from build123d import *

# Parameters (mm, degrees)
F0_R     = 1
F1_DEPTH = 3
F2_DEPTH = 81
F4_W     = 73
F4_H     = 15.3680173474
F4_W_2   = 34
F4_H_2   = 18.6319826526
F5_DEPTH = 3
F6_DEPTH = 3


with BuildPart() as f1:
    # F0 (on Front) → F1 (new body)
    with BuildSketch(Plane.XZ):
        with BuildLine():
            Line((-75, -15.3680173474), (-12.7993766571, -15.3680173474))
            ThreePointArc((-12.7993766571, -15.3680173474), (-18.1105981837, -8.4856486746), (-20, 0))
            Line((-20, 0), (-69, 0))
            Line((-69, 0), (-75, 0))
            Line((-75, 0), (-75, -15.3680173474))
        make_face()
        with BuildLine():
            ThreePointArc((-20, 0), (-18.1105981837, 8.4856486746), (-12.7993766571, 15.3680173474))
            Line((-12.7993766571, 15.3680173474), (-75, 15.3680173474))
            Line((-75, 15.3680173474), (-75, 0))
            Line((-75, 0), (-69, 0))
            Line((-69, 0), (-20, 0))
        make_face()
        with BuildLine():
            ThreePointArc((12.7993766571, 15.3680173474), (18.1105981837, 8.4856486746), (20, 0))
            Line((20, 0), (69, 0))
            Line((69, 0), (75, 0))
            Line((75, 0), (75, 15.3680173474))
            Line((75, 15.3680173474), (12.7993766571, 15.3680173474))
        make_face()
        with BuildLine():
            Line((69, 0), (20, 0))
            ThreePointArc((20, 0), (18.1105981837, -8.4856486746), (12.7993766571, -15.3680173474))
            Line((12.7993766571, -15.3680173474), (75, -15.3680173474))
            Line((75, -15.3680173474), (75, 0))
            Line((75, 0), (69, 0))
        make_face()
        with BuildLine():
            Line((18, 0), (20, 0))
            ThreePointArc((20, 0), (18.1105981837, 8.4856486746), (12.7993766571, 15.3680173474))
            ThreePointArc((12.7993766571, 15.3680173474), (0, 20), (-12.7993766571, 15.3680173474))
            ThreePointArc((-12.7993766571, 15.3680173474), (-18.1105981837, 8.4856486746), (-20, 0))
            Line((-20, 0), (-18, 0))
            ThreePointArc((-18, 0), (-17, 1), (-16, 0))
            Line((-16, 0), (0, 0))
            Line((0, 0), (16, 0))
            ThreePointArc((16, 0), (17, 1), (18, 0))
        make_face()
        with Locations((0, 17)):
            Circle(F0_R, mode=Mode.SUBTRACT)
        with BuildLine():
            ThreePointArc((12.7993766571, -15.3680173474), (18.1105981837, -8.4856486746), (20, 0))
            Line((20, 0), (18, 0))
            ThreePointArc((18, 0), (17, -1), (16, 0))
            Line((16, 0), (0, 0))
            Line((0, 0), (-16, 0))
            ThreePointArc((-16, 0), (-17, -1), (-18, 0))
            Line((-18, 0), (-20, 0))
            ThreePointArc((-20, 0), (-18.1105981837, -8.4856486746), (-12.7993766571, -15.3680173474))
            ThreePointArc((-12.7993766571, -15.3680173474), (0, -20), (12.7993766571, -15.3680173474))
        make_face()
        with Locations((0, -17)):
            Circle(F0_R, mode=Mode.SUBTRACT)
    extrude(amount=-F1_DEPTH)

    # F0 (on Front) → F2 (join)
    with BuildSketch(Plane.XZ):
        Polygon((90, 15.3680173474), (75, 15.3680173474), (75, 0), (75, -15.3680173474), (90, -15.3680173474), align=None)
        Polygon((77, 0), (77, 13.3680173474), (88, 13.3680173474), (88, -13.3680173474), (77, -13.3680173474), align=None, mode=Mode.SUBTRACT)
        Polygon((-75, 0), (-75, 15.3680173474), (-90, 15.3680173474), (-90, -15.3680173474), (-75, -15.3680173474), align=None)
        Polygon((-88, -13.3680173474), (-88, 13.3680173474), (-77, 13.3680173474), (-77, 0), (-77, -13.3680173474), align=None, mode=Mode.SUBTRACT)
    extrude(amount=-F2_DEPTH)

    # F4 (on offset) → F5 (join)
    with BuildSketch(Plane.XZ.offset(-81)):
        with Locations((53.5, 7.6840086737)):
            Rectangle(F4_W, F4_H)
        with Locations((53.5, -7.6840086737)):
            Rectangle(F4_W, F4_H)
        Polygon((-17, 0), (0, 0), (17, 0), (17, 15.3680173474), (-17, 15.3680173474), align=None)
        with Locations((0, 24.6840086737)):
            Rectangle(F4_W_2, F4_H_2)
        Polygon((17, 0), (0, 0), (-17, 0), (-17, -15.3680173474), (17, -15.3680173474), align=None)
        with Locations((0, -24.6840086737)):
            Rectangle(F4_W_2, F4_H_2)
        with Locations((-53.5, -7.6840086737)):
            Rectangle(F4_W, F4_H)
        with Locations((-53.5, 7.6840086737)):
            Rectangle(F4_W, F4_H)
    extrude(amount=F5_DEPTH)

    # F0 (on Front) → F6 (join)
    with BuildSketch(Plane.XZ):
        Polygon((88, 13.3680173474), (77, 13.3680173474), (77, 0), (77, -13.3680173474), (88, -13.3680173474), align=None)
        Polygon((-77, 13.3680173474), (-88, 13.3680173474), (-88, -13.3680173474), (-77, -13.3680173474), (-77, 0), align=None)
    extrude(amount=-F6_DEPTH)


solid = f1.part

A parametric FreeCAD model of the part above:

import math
import FreeCAD as App
import Part
import Sketcher

V = App.Vector
Q = App.Units.Quantity

doc = App.newDocument("Part")
params = doc.addObject("Spreadsheet::Sheet", "Params")
for row, (alias, value) in enumerate([
    ("sketch1_diameter", "2 mm"),
    ("sketch1_radius", "20 mm"),
    ("pad1_length", "3 mm"),
    ("sketch2_width", "15 mm"),
    ("sketch2_width2", "11 mm"),
    ("pad2_length", "81 mm"),
    ("sketch3_width", "73 mm"),
    ("sketch3_width2", "34 mm"),
    ("pad3_length", "3 mm"),
    ("sketch4_width", "11 mm"),
    ("pad4_length", "3 mm"),
], start=1):
    params.set(f"A{row}", alias)
    params.set(f"B{row}", "=" + value)
    params.setAlias(f"B{row}", alias)

body = doc.addObject("PartDesign::Body", "Body")

sketch1 = doc.addObject("Sketcher::SketchObject", "Sketch")
body.addObject(sketch1)
sketch1.AttachmentSupport = (doc.XZ_Plane, [""])
sketch1.MapMode = "FlatFace"
sketch1.addGeometry([
    Part.LineSegment(V(-75, -15.4, 0), V(-12.8, -15.4, 0)),
    Part.ArcOfCircle(Part.Circle(V(0, 0, 0), V(0, 0, 1), 20), math.radians(-130), math.radians(-50)),
    Part.LineSegment(V(12.8, -15.4, 0), V(75, -15.4, 0)),
    Part.LineSegment(V(75, -15.4, 0), V(75, 15.4, 0)),
    Part.LineSegment(V(75, 15.4, 0), V(12.8, 15.4, 0)),
    Part.ArcOfCircle(Part.Circle(V(0, 0, 0), V(0, 0, 1), 20), math.radians(50), math.radians(130)),
    Part.LineSegment(V(-12.8, 15.4, 0), V(-75, 15.4, 0)),
    Part.LineSegment(V(-75, 15.4, 0), V(-75, -15.4, 0)),
    Part.Circle(V(0, -17, 0), V(0, 0, 1), 1),
    Part.Circle(V(-17, 0, 0), V(0, 0, 1), 1),
    Part.Circle(V(17, 0, 0), V(0, 0, 1), 1),
    Part.Circle(V(0, 17, 0), V(0, 0, 1), 1),
], False)
sketch1.addConstraint([
    Sketcher.Constraint("Coincident", 0, 2, 1, 1),
    Sketcher.Constraint("Coincident", 1, 2, 2, 1),
    Sketcher.Constraint("Coincident", 2, 2, 3, 1),
    Sketcher.Constraint("Coincident", 3, 2, 4, 1),
    Sketcher.Constraint("Coincident", 4, 2, 5, 1),
    Sketcher.Constraint("Coincident", 5, 2, 6, 1),
    Sketcher.Constraint("Coincident", 6, 2, 7, 1),
    Sketcher.Constraint("Coincident", 7, 2, 0, 1),
    Sketcher.Constraint("Horizontal", 0),
    Sketcher.Constraint("Horizontal", 2),
    Sketcher.Constraint("Vertical", 3),
    Sketcher.Constraint("Horizontal", 4),
    Sketcher.Constraint("Horizontal", 6),
    Sketcher.Constraint("Vertical", 7),
    Sketcher.Constraint("Coincident", 1, 3, -1, 1),
    Sketcher.Constraint("Coincident", 5, 3, -1, 1),
    Sketcher.Constraint("Equal", 1, 5),
    Sketcher.Constraint("Equal", 8, 9),
    Sketcher.Constraint("Equal", 9, 10),
    Sketcher.Constraint("Equal", 10, 11),
    Sketcher.Constraint("Symmetric", 9, 3, 10, 3, -1, 1),
    Sketcher.Constraint("Symmetric", 8, 3, 11, 3, -1, 1),
    Sketcher.Constraint("Symmetric", 2, 2, 6, 2, -1, 1),
    Sketcher.Constraint("PointOnObject", 8, 3, -2),
    Sketcher.Constraint("PointOnObject", 9, 3, -1),
    Sketcher.Constraint("Horizontal", 0, 2, 1, 2),
    Sketcher.Constraint("Horizontal", 4, 2, 5, 2),
    Sketcher.Constraint("Diameter", 8, Q("2 mm")),
    Sketcher.Constraint("Radius", 1, Q("20 mm")),
    Sketcher.Constraint("DistanceY", 8, 3, -1, 1, Q("17 mm")),
    Sketcher.Constraint("DistanceX", 9, 3, -1, 1, Q("17 mm")),
    Sketcher.Constraint("DistanceX", -1, 1, 2, 2, Q("75 mm")),
    Sketcher.Constraint("DistanceX", 0, 1, 0, 2, Q("62.200623 mm")),
])
sketch1.setExpression("Constraints[27]", "Params.sketch1_diameter")
sketch1.setExpression("Constraints[28]", "Params.sketch1_radius")
pad1 = doc.addObject("PartDesign::Pad", "Pad")
body.addObject(pad1)
pad1.Profile = sketch1
pad1.setExpression("Length", "Params.pad1_length")
pad1.Reversed = True

sketch2 = doc.addObject("Sketcher::SketchObject", "Sketch001")
body.addObject(sketch2)
sketch2.AttachmentSupport = (doc.XZ_Plane, [""])
sketch2.MapMode = "FlatFace"
sketch2.addGeometry([
    Part.LineSegment(V(90, 15, 0), V(75, 15, 0)),
    Part.LineSegment(V(75, 15, 0), V(75, -15, 0)),
    Part.LineSegment(V(75, -15, 0), V(90, -15, 0)),
    Part.LineSegment(V(90, -15, 0), V(90, 15, 0)),
    Part.LineSegment(V(77, -13, 0), V(77, 13, 0)),
    Part.LineSegment(V(77, 13, 0), V(88, 13, 0)),
    Part.LineSegment(V(88, 13, 0), V(88, -13, 0)),
    Part.LineSegment(V(88, -13, 0), V(77, -13, 0)),
    Part.LineSegment(V(-75, 15, 0), V(-90, 15, 0)),
    Part.LineSegment(V(-90, 15, 0), V(-90, -15, 0)),
    Part.LineSegment(V(-90, -15, 0), V(-75, -15, 0)),
    Part.LineSegment(V(-75, -15, 0), V(-75, 15, 0)),
    Part.LineSegment(V(-77, -13, 0), V(-88, -13, 0)),
    Part.LineSegment(V(-88, -13, 0), V(-88, 13, 0)),
    Part.LineSegment(V(-88, 13, 0), V(-77, 13, 0)),
    Part.LineSegment(V(-77, 13, 0), V(-77, -13, 0)),
], False)
sketch2.addConstraint([
    Sketcher.Constraint("Coincident", 0, 2, 1, 1),
    Sketcher.Constraint("Coincident", 1, 2, 2, 1),
    Sketcher.Constraint("Coincident", 2, 2, 3, 1),
    Sketcher.Constraint("Coincident", 3, 2, 0, 1),
    Sketcher.Constraint("Coincident", 4, 2, 5, 1),
    Sketcher.Constraint("Coincident", 5, 2, 6, 1),
    Sketcher.Constraint("Coincident", 6, 2, 7, 1),
    Sketcher.Constraint("Coincident", 7, 2, 4, 1),
    Sketcher.Constraint("Coincident", 8, 2, 9, 1),
    Sketcher.Constraint("Coincident", 9, 2, 10, 1),
    Sketcher.Constraint("Coincident", 10, 2, 11, 1),
    Sketcher.Constraint("Coincident", 11, 2, 8, 1),
    Sketcher.Constraint("Coincident", 12, 2, 13, 1),
    Sketcher.Constraint("Coincident", 13, 2, 14, 1),
    Sketcher.Constraint("Coincident", 14, 2, 15, 1),
    Sketcher.Constraint("Coincident", 15, 2, 12, 1),
    Sketcher.Constraint("Horizontal", 0),
    Sketcher.Constraint("Vertical", 1),
    Sketcher.Constraint("Horizontal", 2),
    Sketcher.Constraint("Vertical", 3),
    Sketcher.Constraint("Vertical", 4),
    Sketcher.Constraint("Horizontal", 5),
    Sketcher.Constraint("Vertical", 6),
    Sketcher.Constraint("Horizontal", 7),
    Sketcher.Constraint("Horizontal", 8),
    Sketcher.Constraint("Vertical", 9),
    Sketcher.Constraint("Horizontal", 10),
    Sketcher.Constraint("Vertical", 11),
    Sketcher.Constraint("Horizontal", 12),
    Sketcher.Constraint("Vertical", 13),
    Sketcher.Constraint("Horizontal", 14),
    Sketcher.Constraint("Vertical", 15),
    Sketcher.Constraint("Symmetric", 2, 2, 8, 2, -1, 1),
    Sketcher.Constraint("Symmetric", 0, 2, 10, 2, -1, 1),
    Sketcher.Constraint("Symmetric", 5, 2, 12, 2, -1, 1),
    Sketcher.Constraint("Symmetric", 7, 2, 14, 2, -1, 1),
    Sketcher.Constraint("Horizontal", 3, 2, 8, 2),
    Sketcher.Constraint("Horizontal", 7, 2, 12, 2),
    Sketcher.Constraint("DistanceX", 0, 2, 0, 1, Q("15 mm")),
    Sketcher.Constraint("DistanceX", 5, 1, 5, 2, Q("11 mm")),
    Sketcher.Constraint("DistanceX", -1, 1, 0, 2, Q("75 mm")),
    Sketcher.Constraint("DistanceX", -1, 1, 4, 2, Q("77 mm")),
    Sketcher.Constraint("DistanceY", 4, 2, 0, 2, Q("2 mm")),
    Sketcher.Constraint("DistanceY", 1, 2, 1, 1, Q("30.736035 mm")),
])
sketch2.setExpression("Constraints[38]", "Params.sketch2_width")
sketch2.setExpression("Constraints[39]", "Params.sketch2_width2")
pad2 = doc.addObject("PartDesign::Pad", "Pad001")
body.addObject(pad2)
pad2.Profile = sketch2
pad2.setExpression("Length", "Params.pad2_length")
pad2.Reversed = True

sketch3 = doc.addObject("Sketcher::SketchObject", "Sketch002")
body.addObject(sketch3)
sketch3.AttachmentSupport = (doc.XZ_Plane, [""])
sketch3.MapMode = "FlatFace"
sketch3.AttachmentOffset = App.Placement(V(0, 0, -81), App.Rotation())
sketch3.addGeometry([
    Part.LineSegment(V(90, -15, 0), V(90, 15, 0)),
    Part.LineSegment(V(90, 15, 0), V(17, 15, 0)),
    Part.LineSegment(V(17, 15, 0), V(17, 34, 0)),
    Part.LineSegment(V(17, 34, 0), V(-17, 34, 0)),
    Part.LineSegment(V(-17, 34, 0), V(-17, 15, 0)),
    Part.LineSegment(V(-17, 15, 0), V(-90, 15, 0)),
    Part.LineSegment(V(-90, 15, 0), V(-90, -15, 0)),
    Part.LineSegment(V(-90, -15, 0), V(-17, -15, 0)),
    Part.LineSegment(V(-17, -15, 0), V(-17, -34, 0)),
    Part.LineSegment(V(-17, -34, 0), V(17, -34, 0)),
    Part.LineSegment(V(17, -34, 0), V(17, -15, 0)),
    Part.LineSegment(V(17, -15, 0), V(90, -15, 0)),
], False)
sketch3.addConstraint([
    Sketcher.Constraint("Coincident", 0, 2, 1, 1),
    Sketcher.Constraint("Coincident", 1, 2, 2, 1),
    Sketcher.Constraint("Coincident", 2, 2, 3, 1),
    Sketcher.Constraint("Coincident", 3, 2, 4, 1),
    Sketcher.Constraint("Coincident", 4, 2, 5, 1),
    Sketcher.Constraint("Coincident", 5, 2, 6, 1),
    Sketcher.Constraint("Coincident", 6, 2, 7, 1),
    Sketcher.Constraint("Coincident", 7, 2, 8, 1),
    Sketcher.Constraint("Coincident", 8, 2, 9, 1),
    Sketcher.Constraint("Coincident", 9, 2, 10, 1),
    Sketcher.Constraint("Coincident", 10, 2, 11, 1),
    Sketcher.Constraint("Coincident", 11, 2, 0, 1),
    Sketcher.Constraint("Vertical", 0),
    Sketcher.Constraint("Horizontal", 1),
    Sketcher.Constraint("Vertical", 2),
    Sketcher.Constraint("Horizontal", 3),
    Sketcher.Constraint("Vertical", 4),
    Sketcher.Constraint("Horizontal", 5),
    Sketcher.Constraint("Vertical", 6),
    Sketcher.Constraint("Horizontal", 7),
    Sketcher.Constraint("Vertical", 8),
    Sketcher.Constraint("Horizontal", 9),
    Sketcher.Constraint("Vertical", 10),
    Sketcher.Constraint("Horizontal", 11),
    Sketcher.Constraint("Symmetric", 0, 2, 6, 2, -1, 1),
    Sketcher.Constraint("Symmetric", 2, 2, 8, 2, -1, 1),
    Sketcher.Constraint("Symmetric", 4, 2, 10, 2, -1, 1),
    Sketcher.Constraint("Symmetric", 1, 2, 4, 2, -2),
    Sketcher.Constraint("DistanceX", 1, 2, 1, 1, Q("73 mm")),
    Sketcher.Constraint("DistanceX", 3, 2, 3, 1, Q("34 mm")),
    Sketcher.Constraint("DistanceY", -1, 1, 2, 2, Q("34 mm")),
    Sketcher.Constraint("DistanceY", 0, 1, 0, 2, Q("30.736035 mm")),
])
sketch3.setExpression("Constraints[28]", "Params.sketch3_width")
sketch3.setExpression("Constraints[29]", "Params.sketch3_width2")
pad3 = doc.addObject("PartDesign::Pad", "Pad002")
body.addObject(pad3)
pad3.Profile = sketch3
pad3.setExpression("Length", "Params.pad3_length")

sketch4 = doc.addObject("Sketcher::SketchObject", "Sketch003")
body.addObject(sketch4)
sketch4.AttachmentSupport = (doc.XZ_Plane, [""])
sketch4.MapMode = "FlatFace"
sketch4.addGeometry([
    Part.LineSegment(V(88, 13, 0), V(77, 13, 0)),
    Part.LineSegment(V(77, 13, 0), V(77, -13, 0)),
    Part.LineSegment(V(77, -13, 0), V(88, -13, 0)),
    Part.LineSegment(V(88, -13, 0), V(88, 13, 0)),
    Part.LineSegment(V(-77, 13, 0), V(-88, 13, 0)),
    Part.LineSegment(V(-88, 13, 0), V(-88, -13, 0)),
    Part.LineSegment(V(-88, -13, 0), V(-77, -13, 0)),
    Part.LineSegment(V(-77, -13, 0), V(-77, 13, 0)),
], False)
sketch4.addConstraint([
    Sketcher.Constraint("Coincident", 0, 2, 1, 1),
    Sketcher.Constraint("Coincident", 1, 2, 2, 1),
    Sketcher.Constraint("Coincident", 2, 2, 3, 1),
    Sketcher.Constraint("Coincident", 3, 2, 0, 1),
    Sketcher.Constraint("Coincident", 4, 2, 5, 1),
    Sketcher.Constraint("Coincident", 5, 2, 6, 1),
    Sketcher.Constraint("Coincident", 6, 2, 7, 1),
    Sketcher.Constraint("Coincident", 7, 2, 4, 1),
    Sketcher.Constraint("Horizontal", 0),
    Sketcher.Constraint("Vertical", 1),
    Sketcher.Constraint("Horizontal", 2),
    Sketcher.Constraint("Vertical", 3),
    Sketcher.Constraint("Horizontal", 4),
    Sketcher.Constraint("Vertical", 5),
    Sketcher.Constraint("Horizontal", 6),
    Sketcher.Constraint("Vertical", 7),
    Sketcher.Constraint("Symmetric", 2, 2, 4, 2, -1, 1),
    Sketcher.Constraint("Symmetric", 0, 2, 6, 2, -1, 1),
    Sketcher.Constraint("Horizontal", 3, 2, 4, 2),
    Sketcher.Constraint("DistanceX", 0, 2, 0, 1, Q("11 mm")),
    Sketcher.Constraint("DistanceX", -1, 1, 0, 2, Q("77 mm")),
    Sketcher.Constraint("DistanceY", 1, 2, 1, 1, Q("26.736035 mm")),
])
sketch4.setExpression("Constraints[19]", "Params.sketch4_width")
pad4 = doc.addObject("PartDesign::Pad", "Pad003")
body.addObject(pad4)
pad4.Profile = sketch4
pad4.setExpression("Length", "Params.pad4_length")
pad4.Reversed = True

doc.recompute()
